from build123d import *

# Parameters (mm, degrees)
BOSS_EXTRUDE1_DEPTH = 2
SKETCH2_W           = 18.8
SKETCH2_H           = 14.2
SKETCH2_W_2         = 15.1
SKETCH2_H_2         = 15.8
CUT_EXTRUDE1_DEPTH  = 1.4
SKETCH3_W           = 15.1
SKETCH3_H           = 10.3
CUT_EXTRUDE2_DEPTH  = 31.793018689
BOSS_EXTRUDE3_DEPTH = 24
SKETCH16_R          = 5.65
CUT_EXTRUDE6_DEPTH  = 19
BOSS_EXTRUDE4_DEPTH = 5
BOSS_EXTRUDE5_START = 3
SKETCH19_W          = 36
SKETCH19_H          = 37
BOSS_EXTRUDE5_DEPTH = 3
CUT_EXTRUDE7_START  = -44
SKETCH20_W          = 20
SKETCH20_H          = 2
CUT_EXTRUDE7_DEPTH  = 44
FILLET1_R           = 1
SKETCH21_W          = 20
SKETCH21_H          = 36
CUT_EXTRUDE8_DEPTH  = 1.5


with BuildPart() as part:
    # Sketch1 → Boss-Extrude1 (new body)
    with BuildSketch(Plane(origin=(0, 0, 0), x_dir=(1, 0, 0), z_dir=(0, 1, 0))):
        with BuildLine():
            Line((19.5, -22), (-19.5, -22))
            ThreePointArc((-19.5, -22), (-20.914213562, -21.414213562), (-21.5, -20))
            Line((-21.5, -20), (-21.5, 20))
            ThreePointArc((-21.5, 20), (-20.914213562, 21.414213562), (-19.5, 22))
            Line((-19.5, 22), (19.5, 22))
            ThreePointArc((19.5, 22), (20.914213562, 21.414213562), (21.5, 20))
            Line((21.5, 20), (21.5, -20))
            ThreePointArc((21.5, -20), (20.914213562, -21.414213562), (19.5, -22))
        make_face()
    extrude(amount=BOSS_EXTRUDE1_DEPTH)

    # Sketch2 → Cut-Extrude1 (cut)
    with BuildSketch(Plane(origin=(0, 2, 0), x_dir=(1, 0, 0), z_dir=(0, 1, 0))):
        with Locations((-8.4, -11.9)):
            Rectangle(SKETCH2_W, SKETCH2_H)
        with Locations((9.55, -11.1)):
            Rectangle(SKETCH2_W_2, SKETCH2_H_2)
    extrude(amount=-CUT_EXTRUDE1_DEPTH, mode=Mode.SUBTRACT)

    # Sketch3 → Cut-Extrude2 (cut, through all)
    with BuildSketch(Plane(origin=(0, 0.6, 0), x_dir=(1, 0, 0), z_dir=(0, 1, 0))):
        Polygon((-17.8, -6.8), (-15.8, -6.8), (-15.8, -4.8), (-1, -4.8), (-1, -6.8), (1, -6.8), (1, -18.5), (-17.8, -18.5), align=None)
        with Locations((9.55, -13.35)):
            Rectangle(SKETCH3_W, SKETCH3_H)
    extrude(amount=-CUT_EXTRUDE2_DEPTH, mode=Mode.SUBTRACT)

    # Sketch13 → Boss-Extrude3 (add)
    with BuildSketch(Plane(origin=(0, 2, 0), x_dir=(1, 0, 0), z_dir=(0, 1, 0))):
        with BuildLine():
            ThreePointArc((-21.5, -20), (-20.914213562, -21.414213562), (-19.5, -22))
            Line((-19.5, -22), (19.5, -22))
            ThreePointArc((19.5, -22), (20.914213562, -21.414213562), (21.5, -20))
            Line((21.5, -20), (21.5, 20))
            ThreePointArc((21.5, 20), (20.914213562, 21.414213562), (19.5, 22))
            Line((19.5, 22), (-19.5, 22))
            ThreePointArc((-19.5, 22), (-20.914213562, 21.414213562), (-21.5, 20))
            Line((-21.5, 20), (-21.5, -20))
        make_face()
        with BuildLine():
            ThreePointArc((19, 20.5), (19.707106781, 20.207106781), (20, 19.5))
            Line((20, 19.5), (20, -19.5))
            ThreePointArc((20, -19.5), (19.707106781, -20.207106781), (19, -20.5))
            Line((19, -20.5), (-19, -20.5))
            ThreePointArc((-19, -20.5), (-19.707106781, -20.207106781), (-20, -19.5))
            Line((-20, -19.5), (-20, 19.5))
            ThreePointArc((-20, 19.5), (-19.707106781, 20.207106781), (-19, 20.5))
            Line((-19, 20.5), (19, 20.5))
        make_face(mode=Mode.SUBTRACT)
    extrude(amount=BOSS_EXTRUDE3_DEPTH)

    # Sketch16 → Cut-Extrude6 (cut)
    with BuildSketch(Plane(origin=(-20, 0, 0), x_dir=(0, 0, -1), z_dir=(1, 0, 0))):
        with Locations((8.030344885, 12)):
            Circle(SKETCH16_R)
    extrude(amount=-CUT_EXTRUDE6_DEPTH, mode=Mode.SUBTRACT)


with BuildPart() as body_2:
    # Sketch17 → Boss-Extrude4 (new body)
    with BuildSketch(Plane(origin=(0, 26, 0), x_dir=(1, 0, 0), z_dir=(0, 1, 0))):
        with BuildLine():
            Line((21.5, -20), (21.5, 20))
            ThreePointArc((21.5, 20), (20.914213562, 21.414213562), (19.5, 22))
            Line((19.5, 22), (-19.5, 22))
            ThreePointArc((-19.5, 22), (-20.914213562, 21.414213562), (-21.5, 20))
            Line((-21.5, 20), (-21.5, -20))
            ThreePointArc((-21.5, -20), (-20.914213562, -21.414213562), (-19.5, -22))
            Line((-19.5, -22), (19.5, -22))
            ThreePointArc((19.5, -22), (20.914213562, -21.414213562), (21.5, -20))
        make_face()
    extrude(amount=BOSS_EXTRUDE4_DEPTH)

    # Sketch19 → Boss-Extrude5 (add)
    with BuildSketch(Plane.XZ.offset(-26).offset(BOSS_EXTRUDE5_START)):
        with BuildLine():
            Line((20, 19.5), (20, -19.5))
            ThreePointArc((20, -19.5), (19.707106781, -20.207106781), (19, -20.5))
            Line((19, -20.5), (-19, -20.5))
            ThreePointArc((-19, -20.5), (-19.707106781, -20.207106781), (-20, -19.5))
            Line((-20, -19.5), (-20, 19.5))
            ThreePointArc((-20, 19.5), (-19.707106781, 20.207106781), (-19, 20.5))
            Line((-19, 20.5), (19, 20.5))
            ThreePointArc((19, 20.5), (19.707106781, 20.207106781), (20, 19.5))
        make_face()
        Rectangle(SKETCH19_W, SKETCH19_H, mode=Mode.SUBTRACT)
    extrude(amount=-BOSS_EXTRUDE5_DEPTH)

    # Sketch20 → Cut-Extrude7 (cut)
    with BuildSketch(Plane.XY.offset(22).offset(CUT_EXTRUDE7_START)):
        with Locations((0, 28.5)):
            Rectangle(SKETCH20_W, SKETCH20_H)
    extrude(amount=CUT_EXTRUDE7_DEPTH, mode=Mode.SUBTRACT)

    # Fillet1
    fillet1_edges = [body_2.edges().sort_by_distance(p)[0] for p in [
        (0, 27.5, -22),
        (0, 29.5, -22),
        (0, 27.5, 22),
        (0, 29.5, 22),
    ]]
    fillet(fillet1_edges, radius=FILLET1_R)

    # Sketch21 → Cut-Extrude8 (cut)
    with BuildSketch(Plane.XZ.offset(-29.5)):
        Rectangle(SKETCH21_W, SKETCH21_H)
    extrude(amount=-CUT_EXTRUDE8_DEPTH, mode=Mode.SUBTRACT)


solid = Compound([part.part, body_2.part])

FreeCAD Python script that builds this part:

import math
import FreeCAD as App
import Part
import Sketcher

V = App.Vector
Q = App.Units.Quantity


def edges_at(feature, points):
    """Names of the edges that pass closest to the given points."""
    edges = feature.Shape.Edges
    near = lambda p: min(range(len(edges)), key=lambda i: edges[i].distToShape(Part.Vertex(*p))[0])
    return sorted({f"Edge{near(p) + 1}" for p in points})


def add_polygon(sketch, points):
    """Adds a closed chain of lines whose ends are joined by coincident constraints."""
    first, n = sketch.GeometryCount, len(points)
    for a, b in zip(points, points[1:] + points[:1]):
        sketch.addGeometry(Part.LineSegment(App.Vector(*a, 0), App.Vector(*b, 0)), False)
    for i in range(n):
        sketch.addConstraint(Sketcher.Constraint("Coincident", first + i, 2, first + (i + 1) % n, 1))

doc = App.newDocument("Part")
body = doc.addObject("PartDesign::Body", "Body")

sketch1 = doc.addObject("Sketcher::SketchObject", "Sketch")
body.addObject(sketch1)
sketch1.AttachmentSupport = (doc.XZ_Plane, [""])
sketch1.MapMode = "FlatFace"
sketch1.addGeometry([
    Part.LineSegment(V(-19.5, 22, 0), V(19.5, 22, 0)),
    Part.ArcOfCircle(Part.Circle(V(19.5, 20, 0), V(0, 0, 1), 2), math.radians(0), math.radians(90)),
    Part.LineSegment(V(21.5, 20, 0), V(21.5, -20, 0)),
    Part.ArcOfCircle(Part.Circle(V(19.5, -20, 0), V(0, 0, 1), 2), math.radians(-90), math.radians(0)),
    Part.LineSegment(V(19.5, -22, 0), V(-19.5, -22, 0)),
    Part.ArcOfCircle(Part.Circle(V(-19.5, -20, 0), V(0, 0, 1), 2), math.radians(-180), math.radians(-90)),
    Part.LineSegment(V(-21.5, -20, 0), V(-21.5, 20, 0)),
    Part.ArcOfCircle(Part.Circle(V(-19.5, 20, 0), V(0, 0, 1), 2), math.radians(90), math.radians(180)),
], False)
sketch1.addConstraint([
    Sketcher.Constraint("Tangent", 0, 2, 1, 2),
    Sketcher.Constraint("Tangent", 1, 1, 2, 1),
    Sketcher.Constraint("Tangent", 2, 2, 3, 2),
    Sketcher.Constraint("Tangent", 3, 1, 4, 1),
    Sketcher.Constraint("Tangent", 4, 2, 5, 2),
    Sketcher.Constraint("Tangent", 5, 1, 6, 1),
    Sketcher.Constraint("Tangent", 6, 2, 7, 2),
    Sketcher.Constraint("Tangent", 7, 1, 0, 1),
    Sketcher.Constraint("Horizontal", 0),
    Sketcher.Constraint("Vertical", 2),
    Sketcher.Constraint("Horizontal", 4),
    Sketcher.Constraint("Vertical", 6),
    Sketcher.Constraint("Equal", 1, 3),
    Sketcher.Constraint("Equal", 3, 5),
    Sketcher.Constraint("Equal", 5, 7),
    Sketcher.Constraint("Symmetric", 1, 3, 5, 3, -1, 1),
    Sketcher.Constraint("Radius", 1, Q("2 mm")),
    Sketcher.Constraint("DistanceX", 0, 1, 0, 2, Q("39 mm")),
    Sketcher.Constraint("DistanceY", 2, 2, 2, 1, Q("40 mm")),
])
pad1 = doc.addObject("PartDesign::Pad", "Pad")
body.addObject(pad1)
pad1.Profile = sketch1
pad1.Length = 2
pad1.Reversed = True

sketch2 = doc.addObject("Sketcher::SketchObject", "Sketch001")
body.addObject(sketch2)
sketch2.AttachmentSupport = (doc.XZ_Plane, [""])
sketch2.MapMode = "FlatFace"
sketch2.AttachmentOffset = App.Placement(V(0, 0, -2), App.Rotation())
add_polygon(sketch2, [(-18, 5), (-18, 19), (1, 19), (1, 5)])
add_polygon(sketch2, [(2, 3), (2, 19), (17, 19), (17, 3)])
sketch2.addConstraint([
    Sketcher.Constraint("Vertical", 0),
    Sketcher.Constraint("Horizontal", 1),
    Sketcher.Constraint("Vertical", 2),
    Sketcher.Constraint("Horizontal", 3),
    Sketcher.Constraint("Vertical", 4),
    Sketcher.Constraint("Horizontal", 5),
    Sketcher.Constraint("Vertical", 6),
    Sketcher.Constraint("Horizontal", 7),
    Sketcher.Constraint("Horizontal", 1, 2, 4, 2),
    Sketcher.Constraint("DistanceX", 1, 1, 1, 2, Q("18.8 mm")),
    Sketcher.Constraint("DistanceX", 5, 1, 5, 2, Q("15.1 mm")),
    Sketcher.Constraint("DistanceY", 0, 1, 0, 2, Q("14.2 mm")),
    Sketcher.Constraint("DistanceY", 4, 1, 4, 2, Q("15.8 mm")),
    Sketcher.Constraint("DistanceY", -1, 1, 0, 2, Q("19 mm")),
    Sketcher.Constraint("DistanceX", -1, 1, 1, 2, Q("1 mm")),
    Sketcher.Constraint("DistanceX", -1, 1, 4, 2, Q("2 mm")),
])
pocket1 = doc.addObject("PartDesign::Pocket", "Pocket")
body.addObject(pocket1)
pocket1.Profile = sketch2
pocket1.Length = 1.4
pocket1.Reversed = True

sketch3 = doc.addObject("Sketcher::SketchObject", "Sketch002")
body.addObject(sketch3)
sketch3.AttachmentSupport = (doc.XZ_Plane, [""])
sketch3.MapMode = "FlatFace"
sketch3.AttachmentOffset = App.Placement(V(0, 0, -0.6), App.Rotation())
add_polygon(sketch3, [(-15.8, 6.8), (-17.8, 6.8), (-17.8, 18.5), (1, 18.5), (1, 6.8), (-1, 6.8), (-1, 4.8), (-15.8, 4.8)])
add_polygon(sketch3, [(2, 8.2), (2, 18.5), (17.1, 18.5), (17.1, 8.2)])
sketch3.addConstraint([
    Sketcher.Constraint("Horizontal", 0),
    Sketcher.Constraint("Vertical", 1),
    Sketcher.Constraint("Horizontal", 2),
    Sketcher.Constraint("Vertical", 3),
    Sketcher.Constraint("Horizontal", 4),
    Sketcher.Constraint("Vertical", 5),
    Sketcher.Constraint("Horizontal", 6),
    Sketcher.Constraint("Vertical", 7),
    Sketcher.Constraint("Vertical", 8),
    Sketcher.Constraint("Horizontal", 9),
    Sketcher.Constraint("Vertical", 10),
    Sketcher.Constraint("Horizontal", 11),
    Sketcher.Constraint("Horizontal", 0, 2, 3, 2),
    Sketcher.Constraint("Horizontal", 2, 2, 8, 2),
    Sketcher.Constraint("Equal", 0, 4),
    Sketcher.Constraint("Equal", 4, 5),
    Sketcher.Constraint("DistanceX", 0, 2, 0, 1, Q("2 mm")),
    Sketcher.Constraint("DistanceX", 2, 1, 2, 2, Q("18.8 mm")),
    Sketcher.Constraint("DistanceX", 9, 1, 9, 2, Q("15.1 mm")),
    Sketcher.Constraint("DistanceY", 1, 1, 1, 2, Q("11.7 mm")),
    Sketcher.Constraint("DistanceY", 8, 1, 8, 2, Q("10.3 mm")),
    Sketcher.Constraint("DistanceX", -1, 1, 2, 2, Q("1 mm")),
    Sketcher.Constraint("DistanceX", -1, 1, 8, 2, Q("2 mm")),
    Sketcher.Constraint("DistanceY", -1, 1, 0, 2, Q("6.8 mm")),
])
pocket2 = doc.addObject("PartDesign::Pocket", "Pocket001")
body.addObject(pocket2)
pocket2.Profile = sketch3
pocket2.Type = "ThroughAll"
pocket2.Reversed = True

sketch4 = doc.addObject("Sketcher::SketchObject", "Sketch003")
body.addObject(sketch4)
sketch4.AttachmentSupport = (doc.XZ_Plane, [""])
sketch4.MapMode = "FlatFace"
sketch4.AttachmentOffset = App.Placement(V(0, 0, -2), App.Rotation())
sketch4.addGeometry([
    Part.ArcOfCircle(Part.Circle(V(-19.5, 20, 0), V(0, 0, 1), 2), math.radians(90), math.radians(180)),
    Part.LineSegment(V(-19.5, 22, 0), V(19.5, 22, 0)),
    Part.ArcOfCircle(Part.Circle(V(19.5, 20, 0), V(0, 0, 1), 2), math.radians(0), math.radians(90)),
    Part.LineSegment(V(21.5, 20, 0), V(21.5, -20, 0)),
    Part.ArcOfCircle(Part.Circle(V(19.5, -20, 0), V(0, 0, 1), 2), math.radians(-90), math.radians(0)),
    Part.LineSegment(V(19.5, -22, 0), V(-19.5, -22, 0)),
    Part.ArcOfCircle(Part.Circle(V(-19.5, -20, 0), V(0, 0, 1), 2), math.radians(-180), math.radians(-90)),
    Part.LineSegment(V(-21.5, -20, 0), V(-21.5, 20, 0)),
    Part.LineSegment(V(-19, -20.5, 0), V(19, -20.5, 0)),
    Part.ArcOfCircle(Part.Circle(V(19, -19.5, 0), V(0, 0, 1), 1), math.radians(-90), math.radians(0)),
    Part.LineSegment(V(20, -19.5, 0), V(20, 19.5, 0)),
    Part.ArcOfCircle(Part.Circle(V(19, 19.5, 0), V(0, 0, 1), 1), math.radians(0), math.radians(90)),
    Part.LineSegment(V(19, 20.5, 0), V(-19, 20.5, 0)),
    Part.ArcOfCircle(Part.Circle(V(-19, 19.5, 0), V(0, 0, 1), 1), math.radians(90), math.radians(180)),
    Part.LineSegment(V(-20, 19.5, 0), V(-20, -19.5, 0)),
    Part.ArcOfCircle(Part.Circle(V(-19, -19.5, 0), V(0, 0, 1), 1), math.radians(-180), math.radians(-90)),
], False)
sketch4.addConstraint([
    Sketcher.Constraint("Tangent", 0, 1, 1, 1),
    Sketcher.Constraint("Tangent", 1, 2, 2, 2),
    Sketcher.Constraint("Tangent", 2, 1, 3, 1),
    Sketcher.Constraint("Tangent", 3, 2, 4, 2),
    Sketcher.Constraint("Tangent", 4, 1, 5, 1),
    Sketcher.Constraint("Tangent", 5, 2, 6, 2),
    Sketcher.Constraint("Tangent", 6, 1, 7, 1),
    Sketcher.Constraint("Tangent", 7, 2, 0, 2),
    Sketcher.Constraint("Tangent", 8, 2, 9, 1),
    Sketcher.Constraint("Tangent", 9, 2, 10, 1),
    Sketcher.Constraint("Tangent", 10, 2, 11, 1),
    Sketcher.Constraint("Tangent", 11, 2, 12, 1),
    Sketcher.Constraint("Tangent", 12, 2, 13, 1),
    Sketcher.Constraint("Tangent", 13, 2, 14, 1),
    Sketcher.Constraint("Tangent", 14, 2, 15, 1),
    Sketcher.Constraint("Tangent", 15, 2, 8, 1),
    Sketcher.Constraint("Horizontal", 1),
    Sketcher.Constraint("Vertical", 3),
    Sketcher.Constraint("Horizontal", 5),
    Sketcher.Constraint("Vertical", 7),
    Sketcher.Constraint("Horizontal", 8),
    Sketcher.Constraint("Vertical", 10),
    Sketcher.Constraint("Horizontal", 12),
    Sketcher.Constraint("Vertical", 14),
    Sketcher.Constraint("Equal", 0, 2),
    Sketcher.Constraint("Equal", 2, 4),
    Sketcher.Constraint("Equal", 4, 6),
    Sketcher.Constraint("Equal", 9, 11),
    Sketcher.Constraint("Equal", 11, 13),
    Sketcher.Constraint("Equal", 13, 15),
    Sketcher.Constraint("Symmetric", 0, 3, 4, 3, -1, 1),
    Sketcher.Constraint("Symmetric", 9, 3, 13, 3, -1, 1),
    Sketcher.Constraint("Equal", 5, 10),
    Sketcher.Constraint("Radius", 0, Q("2 mm")),
    Sketcher.Constraint("Radius", 9, Q("1 mm")),
    Sketcher.Constraint("DistanceX", 1, 1, 1, 2, Q("39 mm")),
    Sketcher.Constraint("DistanceX", 8, 1, 8, 2, Q("38 mm")),
    Sketcher.Constraint("DistanceY", 3, 2, 3, 1, Q("40 mm")),
])
pad2 = doc.addObject("PartDesign::Pad", "Pad001")
body.addObject(pad2)
pad2.Profile = sketch4
pad2.Length = 24
pad2.Reversed = True

sketch5 = doc.addObject("Sketcher::SketchObject", "Sketch004")
body.addObject(sketch5)
sketch5.AttachmentSupport = (doc.YZ_Plane, [""])
sketch5.MapMode = "FlatFace"
sketch5.AttachmentOffset = App.Placement(V(0, 0, -20), App.Rotation())
sketch5.addGeometry(Part.Circle(V(12, -8, 0), V(0, 0, 1), 6), False)
sketch5.addConstraint([
    Sketcher.Constraint("Diameter", 0, Q("11.3 mm")),
    Sketcher.Constraint("DistanceX", -1, 1, 0, 3, Q("12 mm")),
    Sketcher.Constraint("DistanceY", 0, 3, -1, 1, Q("8.030345 mm")),
])
pocket3 = doc.addObject("PartDesign::Pocket", "Pocket002")
body.addObject(pocket3)
pocket3.Profile = sketch5
pocket3.Length = 19
body2 = doc.addObject("PartDesign::Body", "Body001")

sketch6 = doc.addObject("Sketcher::SketchObject", "Sketch005")
body2.addObject(sketch6)
sketch6.AttachmentSupport = (doc.getObject("XZ_Plane001"), [""])
sketch6.MapMode = "FlatFace"
sketch6.AttachmentOffset = App.Placement(V(0, 0, -26), App.Rotation())
sketch6.addGeometry([
    Part.LineSegment(V(21.5, 20, 0), V(21.5, -20, 0)),
    Part.ArcOfCircle(Part.Circle(V(19.5, -20, 0), V(0, 0, 1), 2), math.radians(-90), math.radians(0)),
    Part.LineSegment(V(19.5, -22, 0), V(-19.5, -22, 0)),
    Part.ArcOfCircle(Part.Circle(V(-19.5, -20, 0), V(0, 0, 1), 2), math.radians(-180), math.radians(-90)),
    Part.LineSegment(V(-21.5, -20, 0), V(-21.5, 20, 0)),
    Part.ArcOfCircle(Part.Circle(V(-19.5, 20, 0), V(0, 0, 1), 2), math.radians(90), math.radians(180)),
    Part.LineSegment(V(-19.5, 22, 0), V(19.5, 22, 0)),
    Part.ArcOfCircle(Part.Circle(V(19.5, 20, 0), V(0, 0, 1), 2), math.radians(0), math.radians(90)),
], False)
sketch6.addConstraint([
    Sketcher.Constraint("Tangent", 0, 2, 1, 2),
    Sketcher.Constraint("Tangent", 1, 1, 2, 1),
    Sketcher.Constraint("Tangent", 2, 2, 3, 2),
    Sketcher.Constraint("Tangent", 3, 1, 4, 1),
    Sketcher.Constraint("Tangent", 4, 2, 5, 2),
    Sketcher.Constraint("Tangent", 5, 1, 6, 1),
    Sketcher.Constraint("Tangent", 6, 2, 7, 2),
    Sketcher.Constraint("Tangent", 7, 1, 0, 1),
    Sketcher.Constraint("Vertical", 0),
    Sketcher.Constraint("Horizontal", 2),
    Sketcher.Constraint("Vertical", 4),
    Sketcher.Constraint("Horizontal", 6),
    Sketcher.Constraint("Equal", 1, 3),
    Sketcher.Constraint("Equal", 3, 5),
    Sketcher.Constraint("Equal", 5, 7),
    Sketcher.Constraint("Symmetric", 1, 3, 5, 3, -1, 1),
    Sketcher.Constraint("Radius", 1, Q("2 mm")),
    Sketcher.Constraint("DistanceX", 2, 2, 2, 1, Q("39 mm")),
    Sketcher.Constraint("DistanceY", 0, 2, 0, 1, Q("40 mm")),
])
pad3 = doc.addObject("PartDesign::Pad", "Pad002")
body2.addObject(pad3)
pad3.Profile = sketch6
pad3.Length = 5
pad3.Reversed = True

sketch7 = doc.addObject("Sketcher::SketchObject", "Sketch006")
body2.addObject(sketch7)
sketch7.AttachmentSupport = (doc.getObject("XZ_Plane001"), [""])
sketch7.MapMode = "FlatFace"
sketch7.AttachmentOffset = App.Placement(V(0, 0, -23), App.Rotation())
sketch7.addGeometry(Part.LineSegment(V(20, -19.5, 0), V(20, 19.5, 0)), False)
sketch7.addGeometry(Part.ArcOfCircle(Part.Circle(V(19, 19.5, 0), V(0, 0, 1), 1), math.radians(0), math.radians(90)), False)
sketch7.addGeometry(Part.LineSegment(V(19, 20.5, 0), V(-19, 20.5, 0)), False)
sketch7.addGeometry(Part.ArcOfCircle(Part.Circle(V(-19, 19.5, 0), V(0, 0, 1), 1), math.radians(90), math.radians(180)), False)
sketch7.addGeometry(Part.LineSegment(V(-20, 19.5, 0), V(-20, -19.5, 0)), False)
sketch7.addGeometry(Part.ArcOfCircle(Part.Circle(V(-19, -19.5, 0), V(0, 0, 1), 1), math.radians(-180), math.radians(-90)), False)
sketch7.addGeometry(Part.LineSegment(V(-19, -20.5, 0), V(19, -20.5, 0)), False)
sketch7.addGeometry(Part.ArcOfCircle(Part.Circle(V(19, -19.5, 0), V(0, 0, 1), 1), math.radians(-90), math.radians(0)), False)
add_polygon(sketch7, [(-18, -18.5), (-18, 18.5), (18, 18.5), (18, -18.5)])
sketch7.addConstraint([
    Sketcher.Constraint("Tangent", 0, 2, 1, 1),
    Sketcher.Constraint("Tangent", 1, 2, 2, 1),
    Sketcher.Constraint("Tangent", 2, 2, 3, 1),
    Sketcher.Constraint("Tangent", 3, 2, 4, 1),
    Sketcher.Constraint("Tangent", 4, 2, 5, 1),
    Sketcher.Constraint("Tangent", 5, 2, 6, 1),
    Sketcher.Constraint("Tangent", 6, 2, 7, 1),
    Sketcher.Constraint("Tangent", 7, 2, 0, 1),
    Sketcher.Constraint("Vertical", 0),
    Sketcher.Constraint("Horizontal", 2),
    Sketcher.Constraint("Vertical", 4),
    Sketcher.Constraint("Horizontal", 6),
    Sketcher.Constraint("Vertical", 8),
    Sketcher.Constraint("Horizontal", 9),
    Sketcher.Constraint("Vertical", 10),
    Sketcher.Constraint("Horizontal", 11),
    Sketcher.Constraint("Equal", 1, 3),
    Sketcher.Constraint("Equal", 3, 5),
    Sketcher.Constraint("Equal", 5, 7),
    Sketcher.Constraint("Symmetric", 1, 3, 5, 3, -1, 1),
    Sketcher.Constraint("Symmetric", 8, 2, 10, 2, -1, 1),
    Sketcher.Constraint("Radius", 1, Q("1 mm")),
    Sketcher.Constraint("DistanceX", 2, 2, 2, 1, Q("38 mm")),
    Sketcher.Constraint("DistanceX", 9, 1, 9, 2, Q("36 mm")),
    Sketcher.Constraint("DistanceY", 0, 1, 0, 2, Q("39 mm")),
    Sketcher.Constraint("DistanceY", 8, 1, 8, 2, Q("37 mm")),
])
pad4 = doc.addObject("PartDesign::Pad", "Pad003")
body2.addObject(pad4)
pad4.Profile = sketch7
pad4.Length = 3
pad4.Reversed = True

sketch8 = doc.addObject("Sketcher::SketchObject", "Sketch007")
body2.addObject(sketch8)
sketch8.AttachmentSupport = (doc.getObject("XY_Plane001"), [""])
sketch8.MapMode = "FlatFace"
sketch8.AttachmentOffset = App.Placement(V(0, 0, -22), App.Rotation())
add_polygon(sketch8, [(-10, 29.5), (-10, 27.5), (10, 27.5), (10, 29.5)])
sketch8.addConstraint([
    Sketcher.Constraint("Vertical", 0),
    Sketcher.Constraint("Horizontal", 1),
    Sketcher.Constraint("Vertical", 2),
    Sketcher.Constraint("Horizontal", 3),
    Sketcher.Constraint("DistanceX", 1, 1, 1, 2, Q("20 mm")),
    Sketcher.Constraint("DistanceY", 0, 2, 0, 1, Q("2 mm")),
    Sketcher.Constraint("DistanceX", 0, 2, -1, 1, Q("10 mm")),
    Sketcher.Constraint("DistanceY", -1, 1, 0, 2, Q("27.5 mm")),
])
pocket4 = doc.addObject("PartDesign::Pocket", "Pocket003")
body2.addObject(pocket4)
pocket4.Profile = sketch8
pocket4.Length = 44
pocket4.Reversed = True
doc.recompute()

fillet = doc.addObject("PartDesign::Fillet", "Fillet")
body2.addObject(fillet)
fillet.Base = (pocket4, edges_at(pocket4, [
    (0, 27.5, -22),
    (0, 29.5, -22),
    (0, 27.5, 22),
    (0, 29.5, 22),
]))
fillet.Radius = 1

sketch9 = doc.addObject("Sketcher::SketchObject", "Sketch008")
body2.addObject(sketch9)
sketch9.AttachmentSupport = (doc.getObject("XZ_Plane001"), [""])
sketch9.MapMode = "FlatFace"
sketch9.AttachmentOffset = App.Placement(V(0, 0, -29.5), App.Rotation())
add_polygon(sketch9, [(-10, 18), (-10, -18), (10, -18), (10, 18)])
sketch9.addConstraint([
    Sketcher.Constraint("Vertical", 0),
    Sketcher.Constraint("Horizontal", 1),
    Sketcher.Constraint("Vertical", 2),
    Sketcher.Constraint("Horizontal", 3),
    Sketcher.Constraint("Symmetric", 0, 2, 2, 2, -1, 1),
    Sketcher.Constraint("DistanceX", 1, 1, 1, 2, Q("20 mm")),
    Sketcher.Constraint("DistanceY", 0, 2, 0, 1, Q("36 mm")),
])
pocket5 = doc.addObject("PartDesign::Pocket", "Pocket004")
body2.addObject(pocket5)
pocket5.Profile = sketch9
pocket5.Length = 1.5

doc.recompute()
